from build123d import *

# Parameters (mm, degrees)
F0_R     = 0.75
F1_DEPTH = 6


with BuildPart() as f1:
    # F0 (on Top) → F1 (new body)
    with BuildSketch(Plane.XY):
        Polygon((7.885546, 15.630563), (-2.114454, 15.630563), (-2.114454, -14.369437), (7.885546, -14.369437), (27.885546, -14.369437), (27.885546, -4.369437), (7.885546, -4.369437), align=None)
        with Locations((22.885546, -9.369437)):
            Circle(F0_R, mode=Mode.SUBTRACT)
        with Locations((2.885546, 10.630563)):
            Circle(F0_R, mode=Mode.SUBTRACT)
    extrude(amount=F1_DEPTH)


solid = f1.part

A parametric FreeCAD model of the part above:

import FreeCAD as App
import Part
import Sketcher
Q = App.Units.Quantity


def add_polygon(sketch, points):
    """Adds a closed chain of lines whose ends are joined by coincident constraints."""
    first, n = sketch.GeometryCount, len(points)
    for a, b in zip(points, points[1:] + points[:1]):
        sketch.addGeometry(Part.LineSegment(App.Vector(*a, 0), App.Vector(*b, 0)), False)
    for i in range(n):
        sketch.addConstraint(Sketcher.Constraint("Coincident", first + i, 2, first + (i + 1) % n, 1))

doc = App.newDocument("Part")
body = doc.addObject("PartDesign::Body", "Body")

sketch1 = doc.addObject("Sketcher::SketchObject", "Sketch")
body.addObject(sketch1)
sketch1.AttachmentSupport = (doc.XY_Plane, [""])
sketch1.MapMode = "FlatFace"
add_polygon(sketch1, [(7.9, 15.6), (-2.1, 15.6), (-2.1, -14.4), (27.9, -14.4), (27.9, -4.4), (7.9, -4.4)])
sketch1.addGeometry(Part.Circle(App.Vector(22.9, -9.4, 0), App.Vector(0, 0, 1), 0.8), False)
sketch1.addGeometry(Part.Circle(App.Vector(2.9, 10.6, 0), App.Vector(0, 0, 1), 0.8), False)
sketch1.addConstraint(Sketcher.Constraint("Horizontal", 0))
sketch1.addConstraint(Sketcher.Constraint("Vertical", 1))
sketch1.addConstraint(Sketcher.Constraint("Horizontal", 2))
sketch1.addConstraint(Sketcher.Constraint("Vertical", 3))
sketch1.addConstraint(Sketcher.Constraint("Horizontal", 4))
sketch1.addConstraint(Sketcher.Constraint("Vertical", 5))
sketch1.addConstraint(Sketcher.Constraint("Equal", 6, 7))
sketch1.addConstraint(Sketcher.Constraint("Equal", 2, 1))
sketch1.addConstraint(Sketcher.Constraint("Equal", 0, 3))
sketch1.addConstraint(Sketcher.Constraint("Diameter", 6, Q("1.5 mm")))
sketch1.addConstraint(Sketcher.Constraint("DistanceX", 0, 2, 0, 1, Q("10 mm")))
sketch1.addConstraint(Sketcher.Constraint("DistanceX", 2, 1, 2, 2, Q("30 mm")))
sketch1.addConstraint(Sketcher.Constraint("DistanceX", 7, 3, 6, 3, Q("20 mm")))
sketch1.addConstraint(Sketcher.Constraint("DistanceY", 6, 3, 7, 3, Q("20 mm")))
sketch1.addConstraint(Sketcher.Constraint("DistanceX", 0, 2, 7, 3, Q("5 mm")))
sketch1.addConstraint(Sketcher.Constraint("DistanceY", 7, 3, 0, 2, Q("5 mm")))
sketch1.addConstraint(Sketcher.Constraint("DistanceX", -1, 1, 6, 3, Q("22.885546 mm")))
sketch1.addConstraint(Sketcher.Constraint("DistanceY", 6, 3, -1, 1, Q("9.369437 mm")))
pad1 = doc.addObject("PartDesign::Pad", "Pad")
body.addObject(pad1)
pad1.Profile = sketch1
pad1.Length = 6

doc.recompute()
